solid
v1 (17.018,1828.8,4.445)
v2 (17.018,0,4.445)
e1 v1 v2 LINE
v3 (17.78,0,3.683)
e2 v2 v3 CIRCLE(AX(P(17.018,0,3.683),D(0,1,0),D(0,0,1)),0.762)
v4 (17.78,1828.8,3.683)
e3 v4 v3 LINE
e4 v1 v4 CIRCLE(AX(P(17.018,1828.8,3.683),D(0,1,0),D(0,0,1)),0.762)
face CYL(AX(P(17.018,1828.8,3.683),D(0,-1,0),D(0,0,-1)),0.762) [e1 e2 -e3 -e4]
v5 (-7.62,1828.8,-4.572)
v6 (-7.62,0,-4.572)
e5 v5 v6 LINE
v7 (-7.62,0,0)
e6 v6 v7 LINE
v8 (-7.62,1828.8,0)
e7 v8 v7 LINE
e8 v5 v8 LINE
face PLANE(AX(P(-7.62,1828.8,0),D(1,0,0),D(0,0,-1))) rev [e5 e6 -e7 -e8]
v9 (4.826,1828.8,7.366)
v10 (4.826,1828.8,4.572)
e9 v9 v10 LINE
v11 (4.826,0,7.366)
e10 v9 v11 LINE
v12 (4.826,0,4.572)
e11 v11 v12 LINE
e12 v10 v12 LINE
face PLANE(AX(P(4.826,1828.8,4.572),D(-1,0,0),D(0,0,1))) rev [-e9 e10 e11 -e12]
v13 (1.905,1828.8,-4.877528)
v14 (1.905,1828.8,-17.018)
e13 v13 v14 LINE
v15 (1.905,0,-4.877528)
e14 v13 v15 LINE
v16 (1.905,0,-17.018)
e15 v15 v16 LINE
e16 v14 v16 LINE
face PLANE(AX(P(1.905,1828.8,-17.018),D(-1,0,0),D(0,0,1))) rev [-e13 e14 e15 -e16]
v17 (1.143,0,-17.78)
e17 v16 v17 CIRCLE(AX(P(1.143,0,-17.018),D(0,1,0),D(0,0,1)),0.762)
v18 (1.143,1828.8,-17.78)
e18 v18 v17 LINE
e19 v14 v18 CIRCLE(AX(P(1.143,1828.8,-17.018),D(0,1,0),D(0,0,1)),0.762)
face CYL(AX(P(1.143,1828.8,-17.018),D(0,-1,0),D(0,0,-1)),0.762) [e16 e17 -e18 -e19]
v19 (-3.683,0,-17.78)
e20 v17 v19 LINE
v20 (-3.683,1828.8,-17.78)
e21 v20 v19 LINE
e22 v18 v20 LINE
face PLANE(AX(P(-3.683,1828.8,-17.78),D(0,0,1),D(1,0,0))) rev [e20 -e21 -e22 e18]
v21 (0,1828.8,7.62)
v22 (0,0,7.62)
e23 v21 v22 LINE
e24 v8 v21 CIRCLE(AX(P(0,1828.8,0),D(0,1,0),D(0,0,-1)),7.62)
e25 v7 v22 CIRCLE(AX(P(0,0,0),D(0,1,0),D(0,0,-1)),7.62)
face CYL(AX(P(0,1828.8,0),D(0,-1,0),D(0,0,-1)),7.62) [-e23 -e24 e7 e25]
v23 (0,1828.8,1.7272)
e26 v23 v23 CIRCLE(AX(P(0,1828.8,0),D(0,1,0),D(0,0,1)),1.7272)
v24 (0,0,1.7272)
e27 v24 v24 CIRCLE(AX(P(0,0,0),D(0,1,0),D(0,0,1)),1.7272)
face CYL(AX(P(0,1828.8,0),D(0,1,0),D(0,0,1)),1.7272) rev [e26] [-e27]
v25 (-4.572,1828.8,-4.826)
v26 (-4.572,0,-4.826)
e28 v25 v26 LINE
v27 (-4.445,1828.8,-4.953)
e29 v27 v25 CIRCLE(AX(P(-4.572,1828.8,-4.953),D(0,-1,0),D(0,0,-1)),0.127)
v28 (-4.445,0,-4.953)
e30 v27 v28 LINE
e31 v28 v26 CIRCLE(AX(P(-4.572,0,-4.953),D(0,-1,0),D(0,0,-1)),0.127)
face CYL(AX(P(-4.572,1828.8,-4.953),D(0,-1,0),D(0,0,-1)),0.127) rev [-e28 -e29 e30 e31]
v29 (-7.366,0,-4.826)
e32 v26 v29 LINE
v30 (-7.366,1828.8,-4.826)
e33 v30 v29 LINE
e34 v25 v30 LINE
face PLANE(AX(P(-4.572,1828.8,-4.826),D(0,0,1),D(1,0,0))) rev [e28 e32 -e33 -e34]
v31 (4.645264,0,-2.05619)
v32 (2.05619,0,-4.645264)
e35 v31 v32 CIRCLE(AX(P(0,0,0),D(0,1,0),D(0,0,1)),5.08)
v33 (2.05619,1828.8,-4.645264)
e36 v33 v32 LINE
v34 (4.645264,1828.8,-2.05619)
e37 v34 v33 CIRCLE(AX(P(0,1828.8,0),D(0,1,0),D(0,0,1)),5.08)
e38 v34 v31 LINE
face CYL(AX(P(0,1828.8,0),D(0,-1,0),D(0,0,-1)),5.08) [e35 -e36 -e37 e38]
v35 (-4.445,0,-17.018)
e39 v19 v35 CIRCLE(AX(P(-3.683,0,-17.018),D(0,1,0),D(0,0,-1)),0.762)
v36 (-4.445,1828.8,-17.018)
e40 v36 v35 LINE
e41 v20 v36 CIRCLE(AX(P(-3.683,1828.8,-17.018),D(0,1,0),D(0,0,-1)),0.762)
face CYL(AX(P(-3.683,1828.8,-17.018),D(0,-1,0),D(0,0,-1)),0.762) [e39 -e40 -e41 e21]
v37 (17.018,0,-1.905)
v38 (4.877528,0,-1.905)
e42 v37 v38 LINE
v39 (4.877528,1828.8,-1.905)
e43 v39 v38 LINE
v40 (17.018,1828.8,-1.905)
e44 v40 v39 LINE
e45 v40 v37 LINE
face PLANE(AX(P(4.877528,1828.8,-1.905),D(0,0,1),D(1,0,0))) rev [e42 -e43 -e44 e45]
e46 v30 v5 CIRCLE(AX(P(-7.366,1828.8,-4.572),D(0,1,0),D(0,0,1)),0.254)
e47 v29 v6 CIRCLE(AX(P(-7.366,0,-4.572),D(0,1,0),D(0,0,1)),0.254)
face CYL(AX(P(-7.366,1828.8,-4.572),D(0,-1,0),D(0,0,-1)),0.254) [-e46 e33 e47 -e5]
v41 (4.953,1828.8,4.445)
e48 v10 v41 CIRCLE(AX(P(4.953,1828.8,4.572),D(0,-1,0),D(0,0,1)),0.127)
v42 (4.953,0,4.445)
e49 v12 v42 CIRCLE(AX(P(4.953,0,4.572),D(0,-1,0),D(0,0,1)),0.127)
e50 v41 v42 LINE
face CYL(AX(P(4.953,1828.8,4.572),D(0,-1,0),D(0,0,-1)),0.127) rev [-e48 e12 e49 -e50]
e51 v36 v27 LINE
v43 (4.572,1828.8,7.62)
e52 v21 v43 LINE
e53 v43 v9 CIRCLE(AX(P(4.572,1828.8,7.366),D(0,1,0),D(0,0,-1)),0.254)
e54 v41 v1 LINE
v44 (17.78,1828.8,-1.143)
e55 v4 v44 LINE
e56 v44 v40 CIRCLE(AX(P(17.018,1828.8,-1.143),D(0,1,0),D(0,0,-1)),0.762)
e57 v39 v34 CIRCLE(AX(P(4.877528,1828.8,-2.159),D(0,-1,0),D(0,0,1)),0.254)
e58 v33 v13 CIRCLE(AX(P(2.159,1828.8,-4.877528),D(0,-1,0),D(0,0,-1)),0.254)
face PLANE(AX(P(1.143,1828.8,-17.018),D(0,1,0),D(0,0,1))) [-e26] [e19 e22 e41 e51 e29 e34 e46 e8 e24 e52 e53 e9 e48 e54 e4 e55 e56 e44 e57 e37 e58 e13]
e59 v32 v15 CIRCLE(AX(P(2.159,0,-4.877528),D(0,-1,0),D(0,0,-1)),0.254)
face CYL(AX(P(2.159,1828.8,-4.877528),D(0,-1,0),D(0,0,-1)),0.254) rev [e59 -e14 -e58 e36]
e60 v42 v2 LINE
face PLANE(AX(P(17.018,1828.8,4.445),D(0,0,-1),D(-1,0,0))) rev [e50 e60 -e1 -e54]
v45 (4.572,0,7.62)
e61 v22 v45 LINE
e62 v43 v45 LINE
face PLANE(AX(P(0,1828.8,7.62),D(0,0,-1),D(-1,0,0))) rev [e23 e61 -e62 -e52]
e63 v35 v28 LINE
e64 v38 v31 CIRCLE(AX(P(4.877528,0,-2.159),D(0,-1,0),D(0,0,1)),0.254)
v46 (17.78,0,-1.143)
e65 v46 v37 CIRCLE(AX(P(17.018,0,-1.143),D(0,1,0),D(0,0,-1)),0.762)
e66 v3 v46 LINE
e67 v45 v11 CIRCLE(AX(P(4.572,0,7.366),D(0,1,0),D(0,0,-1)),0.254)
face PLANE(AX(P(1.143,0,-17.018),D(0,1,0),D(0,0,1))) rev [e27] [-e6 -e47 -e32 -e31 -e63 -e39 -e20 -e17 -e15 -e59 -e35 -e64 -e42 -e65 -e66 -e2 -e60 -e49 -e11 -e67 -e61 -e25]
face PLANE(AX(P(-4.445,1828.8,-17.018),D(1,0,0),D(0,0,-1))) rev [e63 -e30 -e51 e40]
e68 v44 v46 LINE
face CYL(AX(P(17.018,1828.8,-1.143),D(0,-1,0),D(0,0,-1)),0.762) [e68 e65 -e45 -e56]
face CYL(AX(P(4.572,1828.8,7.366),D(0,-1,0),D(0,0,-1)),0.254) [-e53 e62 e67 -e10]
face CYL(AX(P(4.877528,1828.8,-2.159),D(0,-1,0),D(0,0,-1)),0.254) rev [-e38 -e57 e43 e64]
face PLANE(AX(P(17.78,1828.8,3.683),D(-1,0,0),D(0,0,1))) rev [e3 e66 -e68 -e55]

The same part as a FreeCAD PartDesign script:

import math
import FreeCAD as App
import Part
import Sketcher
Q = App.Units.Quantity

doc = App.newDocument("Part")
body = doc.addObject("PartDesign::Body", "Body")

# Sketch on XZ plane
sketch1 = body.newObject("Sketcher::SketchObject", "Sketch")
sketch1.AttachmentSupport = (doc.getObject("XZ_Plane"), [""])
sketch1.MapMode = "FlatFace"
sketch1.addGeometry([
    Part.LineSegment(App.Vector(-4.45, -17.02, 0), App.Vector(-4.45, -4.95, 0)),  # 0
    Part.ArcOfCircle(Part.Circle(App.Vector(-4.57, -4.95, 0), App.Vector(0, 0, 1), 0.13), math.radians(0), math.radians(90)),  # 1
    Part.LineSegment(App.Vector(-4.57, -4.83, 0), App.Vector(-7.37, -4.83, 0)),  # 2
    Part.ArcOfCircle(Part.Circle(App.Vector(-7.37, -4.57, 0), App.Vector(0, 0, 1), 0.25), math.radians(-180), math.radians(-90)),  # 3
    Part.LineSegment(App.Vector(-7.62, -4.57, 0), App.Vector(-7.62, 0, 0)),  # 4
    Part.ArcOfCircle(Part.Circle(App.Vector(0, 0, 0), App.Vector(0, 0, 1), 7.62), math.radians(90), math.radians(180)),  # 5
    Part.LineSegment(App.Vector(0, 7.62, 0), App.Vector(4.57, 7.62, 0)),  # 6
    Part.ArcOfCircle(Part.Circle(App.Vector(4.57, 7.37, 0), App.Vector(0, 0, 1), 0.25), math.radians(0), math.radians(90)),  # 7
    Part.LineSegment(App.Vector(4.83, 7.37, 0), App.Vector(4.83, 4.57, 0)),  # 8
    Part.ArcOfCircle(Part.Circle(App.Vector(4.95, 4.57, 0), App.Vector(0, 0, 1), 0.13), math.radians(-180), math.radians(-90)),  # 9
    Part.LineSegment(App.Vector(4.95, 4.45, 0), App.Vector(17.02, 4.45, 0)),  # 10
    Part.ArcOfCircle(Part.Circle(App.Vector(17.02, 3.68, 0), App.Vector(0, 0, 1), 0.76), math.radians(0), math.radians(90)),  # 11
    Part.LineSegment(App.Vector(17.78, 3.68, 0), App.Vector(17.78, -1.14, 0)),  # 12
    Part.ArcOfCircle(Part.Circle(App.Vector(17.02, -1.14, 0), App.Vector(0, 0, 1), 0.76), math.radians(-90), math.radians(0)),  # 13
    Part.LineSegment(App.Vector(17.02, -1.91, 0), App.Vector(4.88, -1.91, 0)),  # 14
    Part.ArcOfCircle(Part.Circle(App.Vector(4.88, -2.16, 0), App.Vector(0, 0, 1), 0.25), math.radians(90), math.radians(156)),  # 15
    Part.ArcOfCircle(Part.Circle(App.Vector(0, 0, 0), App.Vector(0, 0, 1), 5.08), math.radians(-66), math.radians(-24)),  # 16
    Part.ArcOfCircle(Part.Circle(App.Vector(2.16, -4.88, 0), App.Vector(0, 0, 1), 0.25), math.radians(114), math.radians(180)),  # 17
    Part.LineSegment(App.Vector(1.91, -4.88, 0), App.Vector(1.91, -17.02, 0)),  # 18
    Part.ArcOfCircle(Part.Circle(App.Vector(1.14, -17.02, 0), App.Vector(0, 0, 1), 0.76), math.radians(-90), math.radians(0)),  # 19
    Part.LineSegment(App.Vector(1.14, -17.78, 0), App.Vector(-3.68, -17.78, 0)),  # 20
    Part.ArcOfCircle(Part.Circle(App.Vector(-3.68, -17.02, 0), App.Vector(0, 0, 1), 0.76), math.radians(-180), math.radians(-90)),  # 21
], False)
sketch1.addConstraint([
    Sketcher.Constraint("Tangent", 0, 2, 1, 1),
    Sketcher.Constraint("Tangent", 1, 2, 2, 1),
    Sketcher.Constraint("Tangent", 2, 2, 3, 2),
    Sketcher.Constraint("Tangent", 3, 1, 4, 1),
    Sketcher.Constraint("Tangent", 4, 2, 5, 2),
    Sketcher.Constraint("Tangent", 5, 1, 6, 1),
    Sketcher.Constraint("Tangent", 6, 2, 7, 2),
    Sketcher.Constraint("Tangent", 7, 1, 8, 1),
    Sketcher.Constraint("Tangent", 8, 2, 9, 1),
    Sketcher.Constraint("Tangent", 9, 2, 10, 1),
    Sketcher.Constraint("Tangent", 10, 2, 11, 2),
    Sketcher.Constraint("Tangent", 11, 1, 12, 1),
    Sketcher.Constraint("Tangent", 12, 2, 13, 2),
    Sketcher.Constraint("Tangent", 13, 1, 14, 1),
    Sketcher.Constraint("Tangent", 14, 2, 15, 1),
    Sketcher.Constraint("Tangent", 15, 2, 16, 2),
    Sketcher.Constraint("Tangent", 16, 1, 17, 1),
    Sketcher.Constraint("Tangent", 17, 2, 18, 1),
    Sketcher.Constraint("Tangent", 18, 2, 19, 2),
    Sketcher.Constraint("Tangent", 19, 1, 20, 1),
    Sketcher.Constraint("Tangent", 20, 2, 21, 2),
    Sketcher.Constraint("Tangent", 21, 1, 0, 1),
    Sketcher.Constraint("Vertical", 0),
    Sketcher.Constraint("Horizontal", 2),
    Sketcher.Constraint("Vertical", 4),
    Sketcher.Constraint("Horizontal", 6),
    Sketcher.Constraint("Vertical", 8),
    Sketcher.Constraint("Horizontal", 10),
    Sketcher.Constraint("Vertical", 12),
    Sketcher.Constraint("Horizontal", 14),
    Sketcher.Constraint("Vertical", 18),
    Sketcher.Constraint("Horizontal", 20),
    Sketcher.Constraint("Coincident", 5, 3, -1, 1),
    Sketcher.Constraint("Coincident", 16, 3, -1, 1),
    Sketcher.Constraint("Equal", 3, 7),
    Sketcher.Constraint("Equal", 1, 9),
    Sketcher.Constraint("Equal", 11, 13),
    Sketcher.Constraint("Equal", 7, 15),
    Sketcher.Constraint("Equal", 15, 17),
    Sketcher.Constraint("Equal", 13, 19),
    Sketcher.Constraint("Equal", 19, 21),
    Sketcher.Constraint("Equal", 10, 0),
    Sketcher.Constraint("Equal", 6, 4),
    Sketcher.Constraint("Equal", 2, 8),
    Sketcher.Constraint("Equal", 20, 12),
    Sketcher.Constraint("Radius", 5, Q("0.3 in")),
    Sketcher.Constraint("Radius", 16, Q("0.2 in")),
    Sketcher.Constraint("Radius", 3, Q("0.01 in")),
    Sketcher.Constraint("Radius", 11, Q("0.03 in")),
    Sketcher.Constraint("Radius", 1, Q("0.005 in")),
    Sketcher.Constraint("DistanceX", 2, 2, 2, 1, Q("0.11 in")),
    Sketcher.Constraint("DistanceX", 6, 1, 6, 2, Q("0.18 in")),
    Sketcher.Constraint("DistanceX", 20, 2, 20, 1, Q("0.19 in")),
    Sketcher.Constraint("DistanceX", -1, 1, 11, 1, Q("0.7 in")),
])
pad1 = body.newObject("PartDesign::Pad", "Pad")
pad1.Profile = sketch1
pad1.Length = Q("72 in")
pad1.Reversed = True

# Sketch on XZ plane
sketch2 = body.newObject("Sketcher::SketchObject", "Sketch001")
sketch2.AttachmentSupport = (doc.getObject("XZ_Plane"), [""])
sketch2.MapMode = "FlatFace"
sketch2.AttachmentOffset = App.Placement(App.Vector(0, 0, -72 * 25.4), App.Rotation())
sketch2.addGeometry(Part.Circle(App.Vector(0, 0, 0), App.Vector(0, 0, 1), 1.7), False)
sketch2.addConstraint([
    Sketcher.Constraint("Coincident", 0, 3, -1, 1),
    Sketcher.Constraint("Diameter", 0, Q("0.136 in")),
])
doc.recompute()
hole = body.newObject("PartDesign::Hole", "Hole")
hole.Profile = sketch2
hole.ThreadType = "None"
hole.Diameter = Q("0.136 in")
hole.DepthType = "ThroughAll"
hole.Reversed = True

doc.recompute()
